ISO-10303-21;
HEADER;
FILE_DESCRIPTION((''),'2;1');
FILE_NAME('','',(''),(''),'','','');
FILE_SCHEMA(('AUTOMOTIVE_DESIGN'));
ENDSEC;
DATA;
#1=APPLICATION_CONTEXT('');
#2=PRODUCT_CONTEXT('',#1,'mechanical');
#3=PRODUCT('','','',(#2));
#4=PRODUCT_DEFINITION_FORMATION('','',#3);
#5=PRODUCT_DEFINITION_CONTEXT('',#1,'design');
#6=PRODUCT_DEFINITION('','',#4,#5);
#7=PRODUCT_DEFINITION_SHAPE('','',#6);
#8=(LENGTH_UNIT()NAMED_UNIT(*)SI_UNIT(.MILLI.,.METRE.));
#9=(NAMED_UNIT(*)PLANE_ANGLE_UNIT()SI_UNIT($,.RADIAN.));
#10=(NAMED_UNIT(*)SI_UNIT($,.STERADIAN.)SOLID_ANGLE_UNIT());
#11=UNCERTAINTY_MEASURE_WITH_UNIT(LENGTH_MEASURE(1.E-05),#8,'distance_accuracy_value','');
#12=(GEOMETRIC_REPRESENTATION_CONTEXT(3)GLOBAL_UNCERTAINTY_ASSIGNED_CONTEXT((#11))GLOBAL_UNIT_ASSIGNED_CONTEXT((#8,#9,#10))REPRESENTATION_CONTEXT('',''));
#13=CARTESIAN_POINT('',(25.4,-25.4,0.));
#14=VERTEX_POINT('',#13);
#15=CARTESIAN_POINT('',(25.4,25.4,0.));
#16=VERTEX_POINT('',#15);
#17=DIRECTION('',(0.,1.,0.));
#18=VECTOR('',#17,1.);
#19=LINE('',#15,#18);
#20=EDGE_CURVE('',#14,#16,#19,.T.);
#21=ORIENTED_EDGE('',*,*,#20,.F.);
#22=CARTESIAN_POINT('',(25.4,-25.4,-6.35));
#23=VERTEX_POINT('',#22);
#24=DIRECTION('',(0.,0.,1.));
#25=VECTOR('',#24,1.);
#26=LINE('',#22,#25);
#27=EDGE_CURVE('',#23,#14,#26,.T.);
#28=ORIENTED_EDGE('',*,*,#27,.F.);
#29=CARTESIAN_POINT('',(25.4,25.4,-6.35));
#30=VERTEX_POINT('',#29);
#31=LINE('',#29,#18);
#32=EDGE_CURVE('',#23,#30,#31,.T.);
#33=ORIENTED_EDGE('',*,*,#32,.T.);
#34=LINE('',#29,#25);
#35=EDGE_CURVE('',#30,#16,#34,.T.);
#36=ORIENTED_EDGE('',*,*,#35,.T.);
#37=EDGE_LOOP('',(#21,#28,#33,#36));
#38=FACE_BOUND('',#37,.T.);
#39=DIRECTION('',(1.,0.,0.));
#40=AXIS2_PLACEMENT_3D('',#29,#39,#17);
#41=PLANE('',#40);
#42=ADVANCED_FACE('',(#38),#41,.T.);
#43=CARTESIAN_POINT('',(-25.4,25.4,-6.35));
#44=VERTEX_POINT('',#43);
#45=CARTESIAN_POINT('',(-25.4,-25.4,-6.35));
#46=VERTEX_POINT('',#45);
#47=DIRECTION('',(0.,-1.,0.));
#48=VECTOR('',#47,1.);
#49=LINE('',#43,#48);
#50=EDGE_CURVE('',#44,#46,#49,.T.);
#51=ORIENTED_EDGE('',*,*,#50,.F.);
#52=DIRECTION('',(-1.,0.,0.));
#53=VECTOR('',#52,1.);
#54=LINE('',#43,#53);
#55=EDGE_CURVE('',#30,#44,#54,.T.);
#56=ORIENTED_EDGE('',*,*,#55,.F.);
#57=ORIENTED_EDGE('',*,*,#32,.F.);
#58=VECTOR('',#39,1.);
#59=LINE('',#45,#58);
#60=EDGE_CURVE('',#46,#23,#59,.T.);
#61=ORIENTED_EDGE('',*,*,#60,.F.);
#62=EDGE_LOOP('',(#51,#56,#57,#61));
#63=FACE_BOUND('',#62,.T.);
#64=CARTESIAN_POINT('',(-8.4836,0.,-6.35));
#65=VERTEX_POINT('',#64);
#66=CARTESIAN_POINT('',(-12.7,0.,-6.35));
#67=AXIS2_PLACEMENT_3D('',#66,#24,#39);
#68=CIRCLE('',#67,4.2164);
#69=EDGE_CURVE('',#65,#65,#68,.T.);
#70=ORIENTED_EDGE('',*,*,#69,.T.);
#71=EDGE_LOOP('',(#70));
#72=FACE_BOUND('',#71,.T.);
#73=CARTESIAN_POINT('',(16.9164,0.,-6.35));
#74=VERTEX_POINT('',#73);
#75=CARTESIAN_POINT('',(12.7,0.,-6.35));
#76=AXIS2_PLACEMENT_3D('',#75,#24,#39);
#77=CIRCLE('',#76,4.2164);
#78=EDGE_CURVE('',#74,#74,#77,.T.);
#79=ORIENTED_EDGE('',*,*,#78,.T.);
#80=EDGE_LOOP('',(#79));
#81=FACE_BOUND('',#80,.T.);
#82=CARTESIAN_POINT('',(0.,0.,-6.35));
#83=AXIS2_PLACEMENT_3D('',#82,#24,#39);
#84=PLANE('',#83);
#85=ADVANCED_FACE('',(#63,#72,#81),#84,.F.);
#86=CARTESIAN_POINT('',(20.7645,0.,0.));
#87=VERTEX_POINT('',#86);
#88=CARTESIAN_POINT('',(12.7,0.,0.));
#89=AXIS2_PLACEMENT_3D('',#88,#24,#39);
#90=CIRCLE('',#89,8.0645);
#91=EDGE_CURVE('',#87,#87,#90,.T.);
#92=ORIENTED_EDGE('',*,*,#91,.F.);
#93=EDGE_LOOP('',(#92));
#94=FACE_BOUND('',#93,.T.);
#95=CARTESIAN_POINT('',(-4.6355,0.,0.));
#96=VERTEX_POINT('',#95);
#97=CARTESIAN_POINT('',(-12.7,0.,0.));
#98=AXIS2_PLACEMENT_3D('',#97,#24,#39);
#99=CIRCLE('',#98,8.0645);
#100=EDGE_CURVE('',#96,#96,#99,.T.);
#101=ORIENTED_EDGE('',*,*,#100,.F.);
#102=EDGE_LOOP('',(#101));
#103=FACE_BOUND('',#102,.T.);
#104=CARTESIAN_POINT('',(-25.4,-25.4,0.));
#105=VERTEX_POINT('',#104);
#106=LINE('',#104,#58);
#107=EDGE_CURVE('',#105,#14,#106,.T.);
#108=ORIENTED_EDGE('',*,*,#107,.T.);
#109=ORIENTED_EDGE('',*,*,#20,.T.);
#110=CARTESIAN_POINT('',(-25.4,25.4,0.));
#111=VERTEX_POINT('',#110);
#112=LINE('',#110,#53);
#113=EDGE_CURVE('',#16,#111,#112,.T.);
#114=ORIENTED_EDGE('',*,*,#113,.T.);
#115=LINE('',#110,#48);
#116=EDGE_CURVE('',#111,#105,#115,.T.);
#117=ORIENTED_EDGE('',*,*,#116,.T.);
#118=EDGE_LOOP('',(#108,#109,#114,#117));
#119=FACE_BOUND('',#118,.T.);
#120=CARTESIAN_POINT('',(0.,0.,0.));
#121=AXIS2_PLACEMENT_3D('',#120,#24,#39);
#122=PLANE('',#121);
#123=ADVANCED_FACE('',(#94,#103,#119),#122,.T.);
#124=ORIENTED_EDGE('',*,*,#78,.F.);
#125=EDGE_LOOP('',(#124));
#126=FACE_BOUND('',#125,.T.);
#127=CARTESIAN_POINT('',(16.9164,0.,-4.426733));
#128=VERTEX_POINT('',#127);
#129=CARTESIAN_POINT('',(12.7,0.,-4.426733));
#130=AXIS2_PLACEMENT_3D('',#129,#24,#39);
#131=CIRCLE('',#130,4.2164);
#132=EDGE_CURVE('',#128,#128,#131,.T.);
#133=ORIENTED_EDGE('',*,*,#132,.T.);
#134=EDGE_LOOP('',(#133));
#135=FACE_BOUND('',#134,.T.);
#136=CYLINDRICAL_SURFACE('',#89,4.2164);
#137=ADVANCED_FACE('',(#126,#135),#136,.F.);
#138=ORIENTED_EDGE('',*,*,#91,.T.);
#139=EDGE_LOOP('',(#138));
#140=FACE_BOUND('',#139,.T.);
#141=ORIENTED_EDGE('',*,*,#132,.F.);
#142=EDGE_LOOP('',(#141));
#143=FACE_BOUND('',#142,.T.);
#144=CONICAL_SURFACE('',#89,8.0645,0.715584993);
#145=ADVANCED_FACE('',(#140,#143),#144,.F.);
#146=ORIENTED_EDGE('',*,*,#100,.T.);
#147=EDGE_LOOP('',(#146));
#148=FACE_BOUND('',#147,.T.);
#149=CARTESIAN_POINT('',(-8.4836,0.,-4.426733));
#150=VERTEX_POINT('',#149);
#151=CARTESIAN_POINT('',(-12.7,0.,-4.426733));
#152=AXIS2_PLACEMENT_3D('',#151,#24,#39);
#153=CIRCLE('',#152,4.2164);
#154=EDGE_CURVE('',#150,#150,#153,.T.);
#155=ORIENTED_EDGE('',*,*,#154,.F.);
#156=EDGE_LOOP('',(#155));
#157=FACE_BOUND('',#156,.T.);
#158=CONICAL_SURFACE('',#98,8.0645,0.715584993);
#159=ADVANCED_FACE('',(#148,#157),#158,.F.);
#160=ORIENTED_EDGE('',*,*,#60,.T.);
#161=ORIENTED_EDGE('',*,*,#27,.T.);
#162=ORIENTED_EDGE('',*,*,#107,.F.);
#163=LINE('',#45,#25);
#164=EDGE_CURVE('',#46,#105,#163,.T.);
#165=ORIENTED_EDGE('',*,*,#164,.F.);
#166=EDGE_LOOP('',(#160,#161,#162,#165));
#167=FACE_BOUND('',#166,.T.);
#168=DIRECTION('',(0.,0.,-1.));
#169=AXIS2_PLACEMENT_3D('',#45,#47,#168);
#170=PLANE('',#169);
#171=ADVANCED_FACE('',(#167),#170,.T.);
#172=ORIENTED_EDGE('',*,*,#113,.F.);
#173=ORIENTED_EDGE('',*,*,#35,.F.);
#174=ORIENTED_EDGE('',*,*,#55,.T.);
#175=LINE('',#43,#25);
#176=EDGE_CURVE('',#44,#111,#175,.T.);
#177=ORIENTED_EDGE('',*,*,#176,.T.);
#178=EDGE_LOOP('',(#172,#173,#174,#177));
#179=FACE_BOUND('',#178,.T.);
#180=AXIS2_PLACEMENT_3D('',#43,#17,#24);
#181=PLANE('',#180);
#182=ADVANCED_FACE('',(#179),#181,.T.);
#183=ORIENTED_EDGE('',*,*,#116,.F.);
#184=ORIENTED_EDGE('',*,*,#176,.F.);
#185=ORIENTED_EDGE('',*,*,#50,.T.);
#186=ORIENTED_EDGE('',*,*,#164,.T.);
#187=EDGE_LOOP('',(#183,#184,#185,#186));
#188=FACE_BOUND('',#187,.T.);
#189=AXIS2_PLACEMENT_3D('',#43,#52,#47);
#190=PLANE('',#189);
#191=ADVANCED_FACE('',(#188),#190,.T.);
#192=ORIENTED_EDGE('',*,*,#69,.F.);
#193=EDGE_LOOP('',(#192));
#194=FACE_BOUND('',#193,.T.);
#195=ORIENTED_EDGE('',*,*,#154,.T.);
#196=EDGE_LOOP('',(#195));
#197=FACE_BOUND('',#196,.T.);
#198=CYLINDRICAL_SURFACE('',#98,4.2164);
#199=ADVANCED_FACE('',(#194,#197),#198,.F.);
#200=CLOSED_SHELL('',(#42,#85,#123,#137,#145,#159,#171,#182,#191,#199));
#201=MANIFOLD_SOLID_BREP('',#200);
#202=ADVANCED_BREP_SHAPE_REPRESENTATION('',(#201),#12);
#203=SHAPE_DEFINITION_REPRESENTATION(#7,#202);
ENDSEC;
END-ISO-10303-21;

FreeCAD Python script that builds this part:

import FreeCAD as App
import Part
import Sketcher
from FreeCAD import Vector
Q = App.Units.Quantity

doc = App.newDocument("Part")
body = doc.addObject("PartDesign::Body", "Body")

# Sketch on XY plane
sketch1 = body.newObject("Sketcher::SketchObject", "Sketch")
sketch1.AttachmentSupport = (doc.getObject("XY_Plane"), [""])
sketch1.MapMode = "FlatFace"
sketch1.addGeometry([
    Part.LineSegment(Vector(-25.4, 25.4, 0), Vector(-25.4, -25.4, 0)),  # 0
    Part.LineSegment(Vector(-25.4, -25.4, 0), Vector(25.4, -25.4, 0)),  # 1
    Part.LineSegment(Vector(25.4, -25.4, 0), Vector(25.4, 25.4, 0)),  # 2
    Part.LineSegment(Vector(25.4, 25.4, 0), Vector(-25.4, 25.4, 0)),  # 3
    Part.Circle(Vector(-12.7, 0, 0), Vector(0, 0, 1), 3.3),  # 4
    Part.Circle(Vector(12.7, 0, 0), Vector(0, 0, 1), 3.3),  # 5
], False)
sketch1.addConstraint([
    Sketcher.Constraint("Coincident", 0, 2, 1, 1),
    Sketcher.Constraint("Coincident", 1, 2, 2, 1),
    Sketcher.Constraint("Coincident", 2, 2, 3, 1),
    Sketcher.Constraint("Coincident", 3, 2, 0, 1),
    Sketcher.Constraint("Vertical", 0),
    Sketcher.Constraint("Horizontal", 1),
    Sketcher.Constraint("Vertical", 2),
    Sketcher.Constraint("Horizontal", 3),
    Sketcher.Constraint("Equal", 4, 5),
    Sketcher.Constraint("Symmetric", 4, 3, 5, 3, -1, 1),
    Sketcher.Constraint("Symmetric", 0, 2, 2, 2, -1, 1),
    Sketcher.Constraint("PointOnObject", 4, 3, -1),
    Sketcher.Constraint("Equal", 3, 0),
    Sketcher.Constraint("DistanceX", 1, 1, 1, 2, Q("2 in")),
    Sketcher.Constraint("Diameter", 4, Q("0.257 in")),
    Sketcher.Constraint("DistanceX", 4, 3, 5, 3, Q("1 in")),
])
pad1 = body.newObject("PartDesign::Pad", "Pad")
pad1.Profile = sketch1
pad1.Length = Q("0.25 in")
pad1.Reversed = True

# Sketch on XY plane
sketch2 = body.newObject("Sketcher::SketchObject", "Sketch001")
sketch2.AttachmentSupport = (doc.getObject("XY_Plane"), [""])
sketch2.MapMode = "FlatFace"
sketch2.addGeometry([
    Part.Circle(Vector(-12.7, 0, 0), Vector(0, 0, 1), 4.2),
    Part.Circle(Vector(12.7, 0, 0), Vector(0, 0, 1), 4.2),
], False)
sketch2.addConstraint([
    Sketcher.Constraint("Equal", 0, 1),
    Sketcher.Constraint("Symmetric", 0, 3, 1, 3, -1, 1),
    Sketcher.Constraint("PointOnObject", 0, 3, -1),
    Sketcher.Constraint("Diameter", 0, Q("0.332 in")),
    Sketcher.Constraint("DistanceX", 0, 3, 1, 3, Q("1 in")),
])
doc.recompute()
hole = body.newObject("PartDesign::Hole", "Hole")
hole.Profile = sketch2
hole.ThreadType = "None"
hole.Diameter = Q("0.332 in")
hole.DepthType = "Dimension"
hole.Depth = Q("1.29 in")
hole.DrillPoint = "Angled"
hole.DrillPointAngle = 118
hole.HoleCutType = "Countersink"
hole.HoleCutDiameter = Q("0.635 in")
hole.HoleCutCountersinkAngle = 82

doc.recompute()
